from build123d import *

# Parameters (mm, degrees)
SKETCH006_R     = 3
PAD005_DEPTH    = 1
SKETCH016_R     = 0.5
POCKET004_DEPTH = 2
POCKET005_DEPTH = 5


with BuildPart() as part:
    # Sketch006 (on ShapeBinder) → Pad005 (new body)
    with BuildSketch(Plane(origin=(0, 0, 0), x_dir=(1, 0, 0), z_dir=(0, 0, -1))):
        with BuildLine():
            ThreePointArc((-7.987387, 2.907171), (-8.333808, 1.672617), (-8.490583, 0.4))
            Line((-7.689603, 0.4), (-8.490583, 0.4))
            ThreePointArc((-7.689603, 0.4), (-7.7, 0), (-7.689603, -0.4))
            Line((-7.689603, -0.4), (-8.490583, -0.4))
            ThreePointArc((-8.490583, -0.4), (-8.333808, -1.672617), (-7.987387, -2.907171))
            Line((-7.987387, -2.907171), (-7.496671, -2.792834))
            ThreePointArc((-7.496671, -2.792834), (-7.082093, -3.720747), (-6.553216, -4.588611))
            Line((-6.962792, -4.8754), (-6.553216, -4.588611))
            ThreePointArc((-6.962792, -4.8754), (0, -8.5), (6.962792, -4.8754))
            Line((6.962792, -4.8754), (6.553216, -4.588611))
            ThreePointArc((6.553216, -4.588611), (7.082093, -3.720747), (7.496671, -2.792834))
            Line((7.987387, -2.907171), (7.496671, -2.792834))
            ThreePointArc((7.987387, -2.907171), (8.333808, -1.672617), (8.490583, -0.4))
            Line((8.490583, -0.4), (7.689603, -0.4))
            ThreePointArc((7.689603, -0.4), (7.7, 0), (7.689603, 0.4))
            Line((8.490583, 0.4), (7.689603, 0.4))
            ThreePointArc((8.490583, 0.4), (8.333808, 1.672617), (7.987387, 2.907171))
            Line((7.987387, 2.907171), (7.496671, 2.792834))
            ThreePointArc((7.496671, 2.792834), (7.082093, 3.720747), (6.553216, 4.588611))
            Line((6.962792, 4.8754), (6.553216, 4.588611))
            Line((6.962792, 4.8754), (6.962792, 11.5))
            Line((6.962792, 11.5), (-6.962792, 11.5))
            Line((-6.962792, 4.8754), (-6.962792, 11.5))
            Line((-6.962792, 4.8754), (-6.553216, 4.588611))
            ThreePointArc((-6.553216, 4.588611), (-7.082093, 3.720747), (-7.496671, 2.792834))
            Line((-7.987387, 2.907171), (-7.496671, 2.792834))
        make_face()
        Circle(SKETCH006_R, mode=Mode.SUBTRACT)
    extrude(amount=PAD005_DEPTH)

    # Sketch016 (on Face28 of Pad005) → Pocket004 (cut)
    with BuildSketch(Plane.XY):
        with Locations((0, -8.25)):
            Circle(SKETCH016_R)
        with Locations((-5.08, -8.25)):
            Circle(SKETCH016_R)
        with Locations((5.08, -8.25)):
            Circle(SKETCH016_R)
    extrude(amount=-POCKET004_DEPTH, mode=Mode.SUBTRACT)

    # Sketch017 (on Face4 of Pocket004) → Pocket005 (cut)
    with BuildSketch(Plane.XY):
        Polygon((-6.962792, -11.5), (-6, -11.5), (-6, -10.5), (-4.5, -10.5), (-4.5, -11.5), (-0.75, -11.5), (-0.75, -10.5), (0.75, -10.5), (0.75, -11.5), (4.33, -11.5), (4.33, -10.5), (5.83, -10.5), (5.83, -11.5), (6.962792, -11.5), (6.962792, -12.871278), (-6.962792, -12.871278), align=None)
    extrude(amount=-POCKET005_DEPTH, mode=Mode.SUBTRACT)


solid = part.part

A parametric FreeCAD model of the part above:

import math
import FreeCAD as App
import Part
import Sketcher

V = App.Vector
Q = App.Units.Quantity


def add_polygon(sketch, points):
    """Adds a closed chain of lines whose ends are joined by coincident constraints."""
    first, n = sketch.GeometryCount, len(points)
    for a, b in zip(points, points[1:] + points[:1]):
        sketch.addGeometry(Part.LineSegment(App.Vector(*a, 0), App.Vector(*b, 0)), False)
    for i in range(n):
        sketch.addConstraint(Sketcher.Constraint("Coincident", first + i, 2, first + (i + 1) % n, 1))

doc = App.newDocument("Part")
body = doc.addObject("PartDesign::Body", "Body")

# Sketch on XY plane
sketch1 = body.newObject("Sketcher::SketchObject", "Sketch")
sketch1.AttachmentSupport = (doc.getObject("XY_Plane"), [""])
sketch1.MapMode = "FlatFace"
sketch1.addGeometry([
    Part.ArcOfCircle(Part.Circle(V(-0.000033, -0.000005, 0), V(0, 0, 1), 8.499967), math.radians(-177.302758), math.radians(-159.99996)),  # 0
    Part.LineSegment(V(-8.490583, -0.4, 0), V(-7.689603, -0.4, 0)),  # 1
    Part.ArcOfCircle(Part.Circle(V(-0.000274, 0, 0), V(0, 0, 1), 7.699726), math.radians(177.022149), math.radians(182.977851)),  # 2
    Part.LineSegment(V(-7.689603, 0.4, 0), V(-8.490583, 0.4, 0)),  # 3
    Part.ArcOfCircle(Part.Circle(V(-0.000033, 0.000005, 0), V(0, 0, 1), 8.499967), math.radians(159.99996), math.radians(177.302758)),  # 4
    Part.LineSegment(V(-7.987387, 2.907171, 0), V(-7.496671, 2.792834, 0)),  # 5
    Part.ArcOfCircle(Part.Circle(V(-0.000036, 0.000017, 0), V(0, 0, 1), 7.99996), math.radians(144.999953), math.radians(159.567487)),  # 6
    Part.LineSegment(V(-6.553216, 4.588611, 0), V(-6.962792, 4.8754, 0)),  # 7
    Part.ArcOfCircle(Part.Circle(V(0, 0, 0), V(0, 0, 1), 8.5), math.radians(35.000001), math.radians(144.999999)),  # 8
    Part.LineSegment(V(6.962792, 4.8754, 0), V(6.553216, 4.588611, 0)),  # 9
    Part.ArcOfCircle(Part.Circle(V(0.000036, 0.000017, 0), V(0, 0, 1), 7.99996), math.radians(20.432513), math.radians(35.000047)),  # 10
    Part.LineSegment(V(7.496671, 2.792834, 0), V(7.987387, 2.907171, 0)),  # 11
    Part.ArcOfCircle(Part.Circle(V(0.000033, 0.000005, 0), V(0, 0, 1), 8.499967), math.radians(2.697242), math.radians(20.00004)),  # 12
    Part.LineSegment(V(8.490583, 0.4, 0), V(7.689603, 0.4, 0)),  # 13
    Part.ArcOfCircle(Part.Circle(V(0.000274, 0, 0), V(0, 0, 1), 7.699726), math.radians(-2.977851), math.radians(2.977851)),  # 14
    Part.LineSegment(V(7.689603, -0.4, 0), V(8.490583, -0.4, 0)),  # 15
    Part.ArcOfCircle(Part.Circle(V(0.000033, -0.000005, 0), V(0, 0, 1), 8.499967), math.radians(-20.00004), math.radians(-2.697242)),  # 16
    Part.LineSegment(V(7.987387, -2.907171, 0), V(7.496671, -2.792834, 0)),  # 17
    Part.ArcOfCircle(Part.Circle(V(0.000036, -0.000017, 0), V(0, 0, 1), 7.99996), math.radians(-35.000047), math.radians(-20.432513)),  # 18
    Part.LineSegment(V(6.553216, -4.588611, 0), V(6.962792, -4.8754, 0)),  # 19
    Part.LineSegment(V(6.962792, -4.8754, 0), V(6.962792, -11.5, 0)),  # 20
    Part.LineSegment(V(6.962792, -11.5, 0), V(-6.962792, -11.5, 0)),  # 21
    Part.LineSegment(V(-6.962792, -11.5, 0), V(-6.962792, -4.8754, 0)),  # 22
    Part.LineSegment(V(-6.962792, -4.8754, 0), V(-6.553216, -4.588611, 0)),  # 23
    Part.ArcOfCircle(Part.Circle(V(-0.000036, -0.000017, 0), V(0, 0, 1), 7.99996), math.radians(-159.567487), math.radians(-144.999953)),  # 24
    Part.LineSegment(V(-7.496671, -2.792834, 0), V(-7.987387, -2.907171, 0)),  # 25
    Part.Circle(V(0, 0, 0), V(0, 0, 1), 3),  # 26
], False)
sketch1.addConstraint([
    Sketcher.Constraint("Coincident", 0, 1, 1, 1),
    Sketcher.Constraint("Coincident", 1, 2, 2, 2),
    Sketcher.Constraint("Coincident", 2, 1, 3, 1),
    Sketcher.Constraint("Coincident", 3, 2, 4, 2),
    Sketcher.Constraint("Coincident", 4, 1, 5, 1),
    Sketcher.Constraint("Coincident", 5, 2, 6, 2),
    Sketcher.Constraint("Coincident", 6, 1, 7, 1),
    Sketcher.Constraint("Coincident", 7, 2, 8, 2),
    Sketcher.Constraint("Coincident", 8, 1, 9, 1),
    Sketcher.Constraint("Coincident", 9, 2, 10, 2),
    Sketcher.Constraint("Coincident", 10, 1, 11, 1),
    Sketcher.Constraint("Coincident", 11, 2, 12, 2),
    Sketcher.Constraint("Coincident", 12, 1, 13, 1),
    Sketcher.Constraint("Coincident", 13, 2, 14, 2),
    Sketcher.Constraint("Coincident", 14, 1, 15, 1),
    Sketcher.Constraint("Coincident", 15, 2, 16, 2),
    Sketcher.Constraint("Coincident", 16, 1, 17, 1),
    Sketcher.Constraint("Coincident", 17, 2, 18, 2),
    Sketcher.Constraint("Coincident", 18, 1, 19, 1),
    Sketcher.Constraint("Coincident", 19, 2, 20, 1),
    Sketcher.Constraint("Coincident", 20, 2, 21, 1),
    Sketcher.Constraint("Coincident", 21, 2, 22, 1),
    Sketcher.Constraint("Coincident", 22, 2, 23, 1),
    Sketcher.Constraint("Coincident", 23, 2, 24, 2),
    Sketcher.Constraint("Coincident", 24, 1, 25, 1),
    Sketcher.Constraint("Coincident", 25, 2, 0, 2),
    Sketcher.Constraint("Horizontal", 1),
    Sketcher.Constraint("Horizontal", 3),
    Sketcher.Constraint("Horizontal", 13),
    Sketcher.Constraint("Horizontal", 15),
    Sketcher.Constraint("Vertical", 20),
    Sketcher.Constraint("Horizontal", 21),
    Sketcher.Constraint("Vertical", 22),
    Sketcher.Constraint("Coincident", 8, 3, -1, 1),
    Sketcher.Constraint("Coincident", 26, 3, -1, 1),
    Sketcher.Constraint("Equal", 0, 4),
    Sketcher.Constraint("Equal", 6, 10),
    Sketcher.Constraint("Equal", 4, 12),
    Sketcher.Constraint("Equal", 2, 14),
    Sketcher.Constraint("Equal", 12, 16),
    Sketcher.Constraint("Equal", 10, 18),
    Sketcher.Constraint("Equal", 18, 24),
    Sketcher.Constraint("Symmetric", 0, 3, 12, 3, -1, 1),
    Sketcher.Constraint("Symmetric", 2, 3, 14, 3, -1, 1),
    Sketcher.Constraint("Symmetric", 4, 3, 16, 3, -1, 1),
    Sketcher.Constraint("Symmetric", 6, 3, 18, 3, -1, 1),
    Sketcher.Constraint("Symmetric", 10, 3, 24, 3, -1, 1),
    Sketcher.Constraint("Symmetric", 7, 2, 19, 2, -1, 1),
    Sketcher.Constraint("Symmetric", 8, 1, 22, 2, -1, 1),
    Sketcher.Constraint("Symmetric", 6, 3, 10, 3, -2),
    Sketcher.Constraint("Symmetric", 4, 3, 12, 3, -2),
    Sketcher.Constraint("Symmetric", 2, 1, 13, 2, -2),
    Sketcher.Constraint("Parallel", 5, 17),
    Sketcher.Constraint("Parallel", 7, 19),
    Sketcher.Constraint("Parallel", 9, 23),
    Sketcher.Constraint("Parallel", 11, 25),
    Sketcher.Constraint("Horizontal", 7, 2, 8, 1),
    Sketcher.Constraint("Horizontal", 6, 1, 9, 2),
    Sketcher.Constraint("Horizontal", 5, 2, 10, 1),
    Sketcher.Constraint("Horizontal", 4, 1, 11, 2),
    Sketcher.Constraint("Horizontal", 1, 2, 14, 1),
    Sketcher.Constraint("Horizontal", 17, 2, 24, 1),
    Sketcher.Constraint("Vertical", 1, 2, 2, 1),
    Sketcher.Constraint("Vertical", 11, 2, 16, 1),
    Sketcher.Constraint("Diameter", 26, Q("6 mm")),
    Sketcher.Constraint("Radius", 8, Q("8.5 mm")),
    Sketcher.Constraint("Distance", 7, Q("0.5 mm")),
    Sketcher.Constraint("DistanceY", 0, 1, -1, 1, Q("0.4 mm")),
    Sketcher.Constraint("DistanceY", 20, 2, -1, 1, Q("11.5 mm")),
    Sketcher.Constraint("Radius", 6, Q("7.99996 mm")),
    Sketcher.Constraint("DistanceY", 20, 2, 20, 1, Q("6.6246 mm")),
    Sketcher.Constraint("Radius", 0, Q("8.499967 mm")),
    Sketcher.Constraint("Radius", 2, Q("7.699726 mm")),
    Sketcher.Constraint("DistanceX", 1, 1, 1, 2, Q("0.80098 mm")),
    Sketcher.Constraint("Distance", 5, Q("0.50386 mm")),
    Sketcher.Constraint("DistanceY", -1, 1, 4, 1, Q("2.907171 mm")),
    Sketcher.Constraint("DistanceX", 5, 2, -1, 1, Q("7.496671 mm")),
    Sketcher.Constraint("DistanceY", -1, 1, 6, 1, Q("4.588611 mm")),
    Sketcher.Constraint("DistanceX", 2, 3, 0, 3, Q("0.000242 mm")),
    Sketcher.Constraint("DistanceX", 2, 3, 6, 3, Q("0.000238 mm")),
])
pad1 = body.newObject("PartDesign::Pad", "Pad")
pad1.Profile = sketch1
pad1.Length = 1
pad1.Reversed = True

# Sketch on XY plane
sketch2 = body.newObject("Sketcher::SketchObject", "Sketch001")
sketch2.AttachmentSupport = (doc.getObject("XY_Plane"), [""])
sketch2.MapMode = "FlatFace"
sketch2.addGeometry([
    Part.Circle(V(0, -8.2, 0), V(0, 0, 1), 0.5),
    Part.Circle(V(-5.1, -8.2, 0), V(0, 0, 1), 0.5),
    Part.Circle(V(5.1, -8.2, 0), V(0, 0, 1), 0.5),
], False)
sketch2.addConstraint([
    Sketcher.Constraint("Equal", 0, 1),
    Sketcher.Constraint("Equal", 1, 2),
    Sketcher.Constraint("Symmetric", 1, 3, 2, 3, -2),
    Sketcher.Constraint("PointOnObject", 0, 3, -2),
    Sketcher.Constraint("Horizontal", 0, 3, 1, 3),
    Sketcher.Constraint("Diameter", 0, Q("1 mm")),
    Sketcher.Constraint("DistanceY", 0, 3, -1, 1, Q("8.25 mm")),
    Sketcher.Constraint("DistanceX", 1, 3, -1, 1, Q("5.08 mm")),
])
pocket1 = body.newObject("PartDesign::Pocket", "Pocket")
pocket1.Profile = sketch2
pocket1.Length = 2

# Sketch on XY plane
sketch3 = body.newObject("Sketcher::SketchObject", "Sketch002")
sketch3.AttachmentSupport = (doc.getObject("XY_Plane"), [""])
sketch3.MapMode = "FlatFace"
add_polygon(sketch3, [(-6, -11.5), (-7, -11.5), (-7, -12.9), (7, -12.9), (7, -11.5), (5.8, -11.5), (5.8, -10.5), (4.3, -10.5), (4.3, -11.5), (0.8, -11.5), (0.8, -10.5), (-0.8, -10.5), (-0.8, -11.5), (-4.5, -11.5), (-4.5, -10.5), (-6, -10.5)])  # lines 0-15
sketch3.addConstraint([
    Sketcher.Constraint("Horizontal", 0),
    Sketcher.Constraint("Vertical", 1),
    Sketcher.Constraint("Horizontal", 2),
    Sketcher.Constraint("Vertical", 3),
    Sketcher.Constraint("Horizontal", 4),
    Sketcher.Constraint("Vertical", 5),
    Sketcher.Constraint("Horizontal", 6),
    Sketcher.Constraint("Vertical", 7),
    Sketcher.Constraint("Horizontal", 8),
    Sketcher.Constraint("Vertical", 9),
    Sketcher.Constraint("Horizontal", 10),
    Sketcher.Constraint("Vertical", 11),
    Sketcher.Constraint("Horizontal", 12),
    Sketcher.Constraint("Vertical", 13),
    Sketcher.Constraint("Horizontal", 14),
    Sketcher.Constraint("Vertical", 15),
    Sketcher.Constraint("Symmetric", 0, 2, 3, 2, -2),
    Sketcher.Constraint("Symmetric", 8, 2, 11, 2, -2),
    Sketcher.Constraint("Horizontal", 4, 2, 7, 2),
    Sketcher.Constraint("Horizontal", 6, 2, 9, 2),
    Sketcher.Constraint("Horizontal", 10, 2, 13, 2),
    Sketcher.Constraint("Equal", 6, 10),
    Sketcher.Constraint("Equal", 10, 14),
    Sketcher.Constraint("DistanceY", 5, 1, 5, 2, Q("1 mm")),
    Sketcher.Constraint("DistanceX", 6, 2, 6, 1, Q("1.5 mm")),
    Sketcher.Constraint("DistanceX", 14, 2, -1, 1, Q("6 mm")),
    Sketcher.Constraint("DistanceX", 8, 2, 8, 1, Q("3.58 mm")),
    Sketcher.Constraint("DistanceY", 0, 2, -1, 1, Q("11.5 mm")),
    Sketcher.Constraint("DistanceY", 1, 2, 1, 1, Q("1.371278 mm")),
    Sketcher.Constraint("DistanceX", 0, 2, 0, 1, Q("0.962792 mm")),
])
pocket2 = body.newObject("PartDesign::Pocket", "Pocket001")
pocket2.Profile = sketch3
pocket2.Length = 5

doc.recompute()
